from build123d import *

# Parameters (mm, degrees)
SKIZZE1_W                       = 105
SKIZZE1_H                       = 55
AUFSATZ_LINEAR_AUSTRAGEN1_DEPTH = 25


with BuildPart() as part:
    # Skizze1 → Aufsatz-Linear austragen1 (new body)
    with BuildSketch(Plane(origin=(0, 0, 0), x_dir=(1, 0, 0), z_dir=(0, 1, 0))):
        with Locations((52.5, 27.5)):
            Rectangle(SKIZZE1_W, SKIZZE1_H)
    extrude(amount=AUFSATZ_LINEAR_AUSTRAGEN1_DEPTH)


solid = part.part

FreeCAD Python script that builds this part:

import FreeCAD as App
import Part
import Sketcher

V = App.Vector


def add_polygon(sketch, points):
    """Adds a closed chain of lines whose ends are joined by coincident constraints."""
    first, n = sketch.GeometryCount, len(points)
    for a, b in zip(points, points[1:] + points[:1]):
        sketch.addGeometry(Part.LineSegment(App.Vector(*a, 0), App.Vector(*b, 0)), False)
    for i in range(n):
        sketch.addConstraint(Sketcher.Constraint("Coincident", first + i, 2, first + (i + 1) % n, 1))

doc = App.newDocument("Part")
params = doc.addObject("Spreadsheet::Sheet", "Params")
for row, (alias, value) in enumerate([
    ("sketch1_width", "105 mm"),
    ("sketch1_height", "55 mm"),
    ("pad1_length", "25 mm"),
], start=1):
    params.set(f"A{row}", alias)
    params.set(f"B{row}", "=" + value)
    params.setAlias(f"B{row}", alias)

body = doc.addObject("PartDesign::Body", "Body")

# Sketch on XZ plane
sketch1 = body.newObject("Sketcher::SketchObject", "Sketch")
sketch1.AttachmentSupport = (doc.getObject("XZ_Plane"), [""])
sketch1.MapMode = "FlatFace"
add_polygon(sketch1, [(0, -55), (0, 0), (105, 0), (105, -55)])  # lines 0-3
sketch1.addConstraint([
    Sketcher.Constraint("Vertical", 0),
    Sketcher.Constraint("Horizontal", 1),
    Sketcher.Constraint("Vertical", 2),
    Sketcher.Constraint("Horizontal", 3),
    Sketcher.Constraint("Coincident", 0, 2, -1, 1),
    Sketcher.Constraint("DistanceX", 1, 1, 1, 2, 105.0),
    Sketcher.Constraint("DistanceY", 0, 1, 0, 2, 55.0),
])
sketch1.setExpression("Constraints[9]", "Params.sketch1_width")
sketch1.setExpression("Constraints[10]", "Params.sketch1_height")
pad1 = body.newObject("PartDesign::Pad", "Pad")
pad1.Profile = sketch1
pad1.setExpression("Length", "Params.pad1_length")
pad1.Reversed = True

doc.recompute()
